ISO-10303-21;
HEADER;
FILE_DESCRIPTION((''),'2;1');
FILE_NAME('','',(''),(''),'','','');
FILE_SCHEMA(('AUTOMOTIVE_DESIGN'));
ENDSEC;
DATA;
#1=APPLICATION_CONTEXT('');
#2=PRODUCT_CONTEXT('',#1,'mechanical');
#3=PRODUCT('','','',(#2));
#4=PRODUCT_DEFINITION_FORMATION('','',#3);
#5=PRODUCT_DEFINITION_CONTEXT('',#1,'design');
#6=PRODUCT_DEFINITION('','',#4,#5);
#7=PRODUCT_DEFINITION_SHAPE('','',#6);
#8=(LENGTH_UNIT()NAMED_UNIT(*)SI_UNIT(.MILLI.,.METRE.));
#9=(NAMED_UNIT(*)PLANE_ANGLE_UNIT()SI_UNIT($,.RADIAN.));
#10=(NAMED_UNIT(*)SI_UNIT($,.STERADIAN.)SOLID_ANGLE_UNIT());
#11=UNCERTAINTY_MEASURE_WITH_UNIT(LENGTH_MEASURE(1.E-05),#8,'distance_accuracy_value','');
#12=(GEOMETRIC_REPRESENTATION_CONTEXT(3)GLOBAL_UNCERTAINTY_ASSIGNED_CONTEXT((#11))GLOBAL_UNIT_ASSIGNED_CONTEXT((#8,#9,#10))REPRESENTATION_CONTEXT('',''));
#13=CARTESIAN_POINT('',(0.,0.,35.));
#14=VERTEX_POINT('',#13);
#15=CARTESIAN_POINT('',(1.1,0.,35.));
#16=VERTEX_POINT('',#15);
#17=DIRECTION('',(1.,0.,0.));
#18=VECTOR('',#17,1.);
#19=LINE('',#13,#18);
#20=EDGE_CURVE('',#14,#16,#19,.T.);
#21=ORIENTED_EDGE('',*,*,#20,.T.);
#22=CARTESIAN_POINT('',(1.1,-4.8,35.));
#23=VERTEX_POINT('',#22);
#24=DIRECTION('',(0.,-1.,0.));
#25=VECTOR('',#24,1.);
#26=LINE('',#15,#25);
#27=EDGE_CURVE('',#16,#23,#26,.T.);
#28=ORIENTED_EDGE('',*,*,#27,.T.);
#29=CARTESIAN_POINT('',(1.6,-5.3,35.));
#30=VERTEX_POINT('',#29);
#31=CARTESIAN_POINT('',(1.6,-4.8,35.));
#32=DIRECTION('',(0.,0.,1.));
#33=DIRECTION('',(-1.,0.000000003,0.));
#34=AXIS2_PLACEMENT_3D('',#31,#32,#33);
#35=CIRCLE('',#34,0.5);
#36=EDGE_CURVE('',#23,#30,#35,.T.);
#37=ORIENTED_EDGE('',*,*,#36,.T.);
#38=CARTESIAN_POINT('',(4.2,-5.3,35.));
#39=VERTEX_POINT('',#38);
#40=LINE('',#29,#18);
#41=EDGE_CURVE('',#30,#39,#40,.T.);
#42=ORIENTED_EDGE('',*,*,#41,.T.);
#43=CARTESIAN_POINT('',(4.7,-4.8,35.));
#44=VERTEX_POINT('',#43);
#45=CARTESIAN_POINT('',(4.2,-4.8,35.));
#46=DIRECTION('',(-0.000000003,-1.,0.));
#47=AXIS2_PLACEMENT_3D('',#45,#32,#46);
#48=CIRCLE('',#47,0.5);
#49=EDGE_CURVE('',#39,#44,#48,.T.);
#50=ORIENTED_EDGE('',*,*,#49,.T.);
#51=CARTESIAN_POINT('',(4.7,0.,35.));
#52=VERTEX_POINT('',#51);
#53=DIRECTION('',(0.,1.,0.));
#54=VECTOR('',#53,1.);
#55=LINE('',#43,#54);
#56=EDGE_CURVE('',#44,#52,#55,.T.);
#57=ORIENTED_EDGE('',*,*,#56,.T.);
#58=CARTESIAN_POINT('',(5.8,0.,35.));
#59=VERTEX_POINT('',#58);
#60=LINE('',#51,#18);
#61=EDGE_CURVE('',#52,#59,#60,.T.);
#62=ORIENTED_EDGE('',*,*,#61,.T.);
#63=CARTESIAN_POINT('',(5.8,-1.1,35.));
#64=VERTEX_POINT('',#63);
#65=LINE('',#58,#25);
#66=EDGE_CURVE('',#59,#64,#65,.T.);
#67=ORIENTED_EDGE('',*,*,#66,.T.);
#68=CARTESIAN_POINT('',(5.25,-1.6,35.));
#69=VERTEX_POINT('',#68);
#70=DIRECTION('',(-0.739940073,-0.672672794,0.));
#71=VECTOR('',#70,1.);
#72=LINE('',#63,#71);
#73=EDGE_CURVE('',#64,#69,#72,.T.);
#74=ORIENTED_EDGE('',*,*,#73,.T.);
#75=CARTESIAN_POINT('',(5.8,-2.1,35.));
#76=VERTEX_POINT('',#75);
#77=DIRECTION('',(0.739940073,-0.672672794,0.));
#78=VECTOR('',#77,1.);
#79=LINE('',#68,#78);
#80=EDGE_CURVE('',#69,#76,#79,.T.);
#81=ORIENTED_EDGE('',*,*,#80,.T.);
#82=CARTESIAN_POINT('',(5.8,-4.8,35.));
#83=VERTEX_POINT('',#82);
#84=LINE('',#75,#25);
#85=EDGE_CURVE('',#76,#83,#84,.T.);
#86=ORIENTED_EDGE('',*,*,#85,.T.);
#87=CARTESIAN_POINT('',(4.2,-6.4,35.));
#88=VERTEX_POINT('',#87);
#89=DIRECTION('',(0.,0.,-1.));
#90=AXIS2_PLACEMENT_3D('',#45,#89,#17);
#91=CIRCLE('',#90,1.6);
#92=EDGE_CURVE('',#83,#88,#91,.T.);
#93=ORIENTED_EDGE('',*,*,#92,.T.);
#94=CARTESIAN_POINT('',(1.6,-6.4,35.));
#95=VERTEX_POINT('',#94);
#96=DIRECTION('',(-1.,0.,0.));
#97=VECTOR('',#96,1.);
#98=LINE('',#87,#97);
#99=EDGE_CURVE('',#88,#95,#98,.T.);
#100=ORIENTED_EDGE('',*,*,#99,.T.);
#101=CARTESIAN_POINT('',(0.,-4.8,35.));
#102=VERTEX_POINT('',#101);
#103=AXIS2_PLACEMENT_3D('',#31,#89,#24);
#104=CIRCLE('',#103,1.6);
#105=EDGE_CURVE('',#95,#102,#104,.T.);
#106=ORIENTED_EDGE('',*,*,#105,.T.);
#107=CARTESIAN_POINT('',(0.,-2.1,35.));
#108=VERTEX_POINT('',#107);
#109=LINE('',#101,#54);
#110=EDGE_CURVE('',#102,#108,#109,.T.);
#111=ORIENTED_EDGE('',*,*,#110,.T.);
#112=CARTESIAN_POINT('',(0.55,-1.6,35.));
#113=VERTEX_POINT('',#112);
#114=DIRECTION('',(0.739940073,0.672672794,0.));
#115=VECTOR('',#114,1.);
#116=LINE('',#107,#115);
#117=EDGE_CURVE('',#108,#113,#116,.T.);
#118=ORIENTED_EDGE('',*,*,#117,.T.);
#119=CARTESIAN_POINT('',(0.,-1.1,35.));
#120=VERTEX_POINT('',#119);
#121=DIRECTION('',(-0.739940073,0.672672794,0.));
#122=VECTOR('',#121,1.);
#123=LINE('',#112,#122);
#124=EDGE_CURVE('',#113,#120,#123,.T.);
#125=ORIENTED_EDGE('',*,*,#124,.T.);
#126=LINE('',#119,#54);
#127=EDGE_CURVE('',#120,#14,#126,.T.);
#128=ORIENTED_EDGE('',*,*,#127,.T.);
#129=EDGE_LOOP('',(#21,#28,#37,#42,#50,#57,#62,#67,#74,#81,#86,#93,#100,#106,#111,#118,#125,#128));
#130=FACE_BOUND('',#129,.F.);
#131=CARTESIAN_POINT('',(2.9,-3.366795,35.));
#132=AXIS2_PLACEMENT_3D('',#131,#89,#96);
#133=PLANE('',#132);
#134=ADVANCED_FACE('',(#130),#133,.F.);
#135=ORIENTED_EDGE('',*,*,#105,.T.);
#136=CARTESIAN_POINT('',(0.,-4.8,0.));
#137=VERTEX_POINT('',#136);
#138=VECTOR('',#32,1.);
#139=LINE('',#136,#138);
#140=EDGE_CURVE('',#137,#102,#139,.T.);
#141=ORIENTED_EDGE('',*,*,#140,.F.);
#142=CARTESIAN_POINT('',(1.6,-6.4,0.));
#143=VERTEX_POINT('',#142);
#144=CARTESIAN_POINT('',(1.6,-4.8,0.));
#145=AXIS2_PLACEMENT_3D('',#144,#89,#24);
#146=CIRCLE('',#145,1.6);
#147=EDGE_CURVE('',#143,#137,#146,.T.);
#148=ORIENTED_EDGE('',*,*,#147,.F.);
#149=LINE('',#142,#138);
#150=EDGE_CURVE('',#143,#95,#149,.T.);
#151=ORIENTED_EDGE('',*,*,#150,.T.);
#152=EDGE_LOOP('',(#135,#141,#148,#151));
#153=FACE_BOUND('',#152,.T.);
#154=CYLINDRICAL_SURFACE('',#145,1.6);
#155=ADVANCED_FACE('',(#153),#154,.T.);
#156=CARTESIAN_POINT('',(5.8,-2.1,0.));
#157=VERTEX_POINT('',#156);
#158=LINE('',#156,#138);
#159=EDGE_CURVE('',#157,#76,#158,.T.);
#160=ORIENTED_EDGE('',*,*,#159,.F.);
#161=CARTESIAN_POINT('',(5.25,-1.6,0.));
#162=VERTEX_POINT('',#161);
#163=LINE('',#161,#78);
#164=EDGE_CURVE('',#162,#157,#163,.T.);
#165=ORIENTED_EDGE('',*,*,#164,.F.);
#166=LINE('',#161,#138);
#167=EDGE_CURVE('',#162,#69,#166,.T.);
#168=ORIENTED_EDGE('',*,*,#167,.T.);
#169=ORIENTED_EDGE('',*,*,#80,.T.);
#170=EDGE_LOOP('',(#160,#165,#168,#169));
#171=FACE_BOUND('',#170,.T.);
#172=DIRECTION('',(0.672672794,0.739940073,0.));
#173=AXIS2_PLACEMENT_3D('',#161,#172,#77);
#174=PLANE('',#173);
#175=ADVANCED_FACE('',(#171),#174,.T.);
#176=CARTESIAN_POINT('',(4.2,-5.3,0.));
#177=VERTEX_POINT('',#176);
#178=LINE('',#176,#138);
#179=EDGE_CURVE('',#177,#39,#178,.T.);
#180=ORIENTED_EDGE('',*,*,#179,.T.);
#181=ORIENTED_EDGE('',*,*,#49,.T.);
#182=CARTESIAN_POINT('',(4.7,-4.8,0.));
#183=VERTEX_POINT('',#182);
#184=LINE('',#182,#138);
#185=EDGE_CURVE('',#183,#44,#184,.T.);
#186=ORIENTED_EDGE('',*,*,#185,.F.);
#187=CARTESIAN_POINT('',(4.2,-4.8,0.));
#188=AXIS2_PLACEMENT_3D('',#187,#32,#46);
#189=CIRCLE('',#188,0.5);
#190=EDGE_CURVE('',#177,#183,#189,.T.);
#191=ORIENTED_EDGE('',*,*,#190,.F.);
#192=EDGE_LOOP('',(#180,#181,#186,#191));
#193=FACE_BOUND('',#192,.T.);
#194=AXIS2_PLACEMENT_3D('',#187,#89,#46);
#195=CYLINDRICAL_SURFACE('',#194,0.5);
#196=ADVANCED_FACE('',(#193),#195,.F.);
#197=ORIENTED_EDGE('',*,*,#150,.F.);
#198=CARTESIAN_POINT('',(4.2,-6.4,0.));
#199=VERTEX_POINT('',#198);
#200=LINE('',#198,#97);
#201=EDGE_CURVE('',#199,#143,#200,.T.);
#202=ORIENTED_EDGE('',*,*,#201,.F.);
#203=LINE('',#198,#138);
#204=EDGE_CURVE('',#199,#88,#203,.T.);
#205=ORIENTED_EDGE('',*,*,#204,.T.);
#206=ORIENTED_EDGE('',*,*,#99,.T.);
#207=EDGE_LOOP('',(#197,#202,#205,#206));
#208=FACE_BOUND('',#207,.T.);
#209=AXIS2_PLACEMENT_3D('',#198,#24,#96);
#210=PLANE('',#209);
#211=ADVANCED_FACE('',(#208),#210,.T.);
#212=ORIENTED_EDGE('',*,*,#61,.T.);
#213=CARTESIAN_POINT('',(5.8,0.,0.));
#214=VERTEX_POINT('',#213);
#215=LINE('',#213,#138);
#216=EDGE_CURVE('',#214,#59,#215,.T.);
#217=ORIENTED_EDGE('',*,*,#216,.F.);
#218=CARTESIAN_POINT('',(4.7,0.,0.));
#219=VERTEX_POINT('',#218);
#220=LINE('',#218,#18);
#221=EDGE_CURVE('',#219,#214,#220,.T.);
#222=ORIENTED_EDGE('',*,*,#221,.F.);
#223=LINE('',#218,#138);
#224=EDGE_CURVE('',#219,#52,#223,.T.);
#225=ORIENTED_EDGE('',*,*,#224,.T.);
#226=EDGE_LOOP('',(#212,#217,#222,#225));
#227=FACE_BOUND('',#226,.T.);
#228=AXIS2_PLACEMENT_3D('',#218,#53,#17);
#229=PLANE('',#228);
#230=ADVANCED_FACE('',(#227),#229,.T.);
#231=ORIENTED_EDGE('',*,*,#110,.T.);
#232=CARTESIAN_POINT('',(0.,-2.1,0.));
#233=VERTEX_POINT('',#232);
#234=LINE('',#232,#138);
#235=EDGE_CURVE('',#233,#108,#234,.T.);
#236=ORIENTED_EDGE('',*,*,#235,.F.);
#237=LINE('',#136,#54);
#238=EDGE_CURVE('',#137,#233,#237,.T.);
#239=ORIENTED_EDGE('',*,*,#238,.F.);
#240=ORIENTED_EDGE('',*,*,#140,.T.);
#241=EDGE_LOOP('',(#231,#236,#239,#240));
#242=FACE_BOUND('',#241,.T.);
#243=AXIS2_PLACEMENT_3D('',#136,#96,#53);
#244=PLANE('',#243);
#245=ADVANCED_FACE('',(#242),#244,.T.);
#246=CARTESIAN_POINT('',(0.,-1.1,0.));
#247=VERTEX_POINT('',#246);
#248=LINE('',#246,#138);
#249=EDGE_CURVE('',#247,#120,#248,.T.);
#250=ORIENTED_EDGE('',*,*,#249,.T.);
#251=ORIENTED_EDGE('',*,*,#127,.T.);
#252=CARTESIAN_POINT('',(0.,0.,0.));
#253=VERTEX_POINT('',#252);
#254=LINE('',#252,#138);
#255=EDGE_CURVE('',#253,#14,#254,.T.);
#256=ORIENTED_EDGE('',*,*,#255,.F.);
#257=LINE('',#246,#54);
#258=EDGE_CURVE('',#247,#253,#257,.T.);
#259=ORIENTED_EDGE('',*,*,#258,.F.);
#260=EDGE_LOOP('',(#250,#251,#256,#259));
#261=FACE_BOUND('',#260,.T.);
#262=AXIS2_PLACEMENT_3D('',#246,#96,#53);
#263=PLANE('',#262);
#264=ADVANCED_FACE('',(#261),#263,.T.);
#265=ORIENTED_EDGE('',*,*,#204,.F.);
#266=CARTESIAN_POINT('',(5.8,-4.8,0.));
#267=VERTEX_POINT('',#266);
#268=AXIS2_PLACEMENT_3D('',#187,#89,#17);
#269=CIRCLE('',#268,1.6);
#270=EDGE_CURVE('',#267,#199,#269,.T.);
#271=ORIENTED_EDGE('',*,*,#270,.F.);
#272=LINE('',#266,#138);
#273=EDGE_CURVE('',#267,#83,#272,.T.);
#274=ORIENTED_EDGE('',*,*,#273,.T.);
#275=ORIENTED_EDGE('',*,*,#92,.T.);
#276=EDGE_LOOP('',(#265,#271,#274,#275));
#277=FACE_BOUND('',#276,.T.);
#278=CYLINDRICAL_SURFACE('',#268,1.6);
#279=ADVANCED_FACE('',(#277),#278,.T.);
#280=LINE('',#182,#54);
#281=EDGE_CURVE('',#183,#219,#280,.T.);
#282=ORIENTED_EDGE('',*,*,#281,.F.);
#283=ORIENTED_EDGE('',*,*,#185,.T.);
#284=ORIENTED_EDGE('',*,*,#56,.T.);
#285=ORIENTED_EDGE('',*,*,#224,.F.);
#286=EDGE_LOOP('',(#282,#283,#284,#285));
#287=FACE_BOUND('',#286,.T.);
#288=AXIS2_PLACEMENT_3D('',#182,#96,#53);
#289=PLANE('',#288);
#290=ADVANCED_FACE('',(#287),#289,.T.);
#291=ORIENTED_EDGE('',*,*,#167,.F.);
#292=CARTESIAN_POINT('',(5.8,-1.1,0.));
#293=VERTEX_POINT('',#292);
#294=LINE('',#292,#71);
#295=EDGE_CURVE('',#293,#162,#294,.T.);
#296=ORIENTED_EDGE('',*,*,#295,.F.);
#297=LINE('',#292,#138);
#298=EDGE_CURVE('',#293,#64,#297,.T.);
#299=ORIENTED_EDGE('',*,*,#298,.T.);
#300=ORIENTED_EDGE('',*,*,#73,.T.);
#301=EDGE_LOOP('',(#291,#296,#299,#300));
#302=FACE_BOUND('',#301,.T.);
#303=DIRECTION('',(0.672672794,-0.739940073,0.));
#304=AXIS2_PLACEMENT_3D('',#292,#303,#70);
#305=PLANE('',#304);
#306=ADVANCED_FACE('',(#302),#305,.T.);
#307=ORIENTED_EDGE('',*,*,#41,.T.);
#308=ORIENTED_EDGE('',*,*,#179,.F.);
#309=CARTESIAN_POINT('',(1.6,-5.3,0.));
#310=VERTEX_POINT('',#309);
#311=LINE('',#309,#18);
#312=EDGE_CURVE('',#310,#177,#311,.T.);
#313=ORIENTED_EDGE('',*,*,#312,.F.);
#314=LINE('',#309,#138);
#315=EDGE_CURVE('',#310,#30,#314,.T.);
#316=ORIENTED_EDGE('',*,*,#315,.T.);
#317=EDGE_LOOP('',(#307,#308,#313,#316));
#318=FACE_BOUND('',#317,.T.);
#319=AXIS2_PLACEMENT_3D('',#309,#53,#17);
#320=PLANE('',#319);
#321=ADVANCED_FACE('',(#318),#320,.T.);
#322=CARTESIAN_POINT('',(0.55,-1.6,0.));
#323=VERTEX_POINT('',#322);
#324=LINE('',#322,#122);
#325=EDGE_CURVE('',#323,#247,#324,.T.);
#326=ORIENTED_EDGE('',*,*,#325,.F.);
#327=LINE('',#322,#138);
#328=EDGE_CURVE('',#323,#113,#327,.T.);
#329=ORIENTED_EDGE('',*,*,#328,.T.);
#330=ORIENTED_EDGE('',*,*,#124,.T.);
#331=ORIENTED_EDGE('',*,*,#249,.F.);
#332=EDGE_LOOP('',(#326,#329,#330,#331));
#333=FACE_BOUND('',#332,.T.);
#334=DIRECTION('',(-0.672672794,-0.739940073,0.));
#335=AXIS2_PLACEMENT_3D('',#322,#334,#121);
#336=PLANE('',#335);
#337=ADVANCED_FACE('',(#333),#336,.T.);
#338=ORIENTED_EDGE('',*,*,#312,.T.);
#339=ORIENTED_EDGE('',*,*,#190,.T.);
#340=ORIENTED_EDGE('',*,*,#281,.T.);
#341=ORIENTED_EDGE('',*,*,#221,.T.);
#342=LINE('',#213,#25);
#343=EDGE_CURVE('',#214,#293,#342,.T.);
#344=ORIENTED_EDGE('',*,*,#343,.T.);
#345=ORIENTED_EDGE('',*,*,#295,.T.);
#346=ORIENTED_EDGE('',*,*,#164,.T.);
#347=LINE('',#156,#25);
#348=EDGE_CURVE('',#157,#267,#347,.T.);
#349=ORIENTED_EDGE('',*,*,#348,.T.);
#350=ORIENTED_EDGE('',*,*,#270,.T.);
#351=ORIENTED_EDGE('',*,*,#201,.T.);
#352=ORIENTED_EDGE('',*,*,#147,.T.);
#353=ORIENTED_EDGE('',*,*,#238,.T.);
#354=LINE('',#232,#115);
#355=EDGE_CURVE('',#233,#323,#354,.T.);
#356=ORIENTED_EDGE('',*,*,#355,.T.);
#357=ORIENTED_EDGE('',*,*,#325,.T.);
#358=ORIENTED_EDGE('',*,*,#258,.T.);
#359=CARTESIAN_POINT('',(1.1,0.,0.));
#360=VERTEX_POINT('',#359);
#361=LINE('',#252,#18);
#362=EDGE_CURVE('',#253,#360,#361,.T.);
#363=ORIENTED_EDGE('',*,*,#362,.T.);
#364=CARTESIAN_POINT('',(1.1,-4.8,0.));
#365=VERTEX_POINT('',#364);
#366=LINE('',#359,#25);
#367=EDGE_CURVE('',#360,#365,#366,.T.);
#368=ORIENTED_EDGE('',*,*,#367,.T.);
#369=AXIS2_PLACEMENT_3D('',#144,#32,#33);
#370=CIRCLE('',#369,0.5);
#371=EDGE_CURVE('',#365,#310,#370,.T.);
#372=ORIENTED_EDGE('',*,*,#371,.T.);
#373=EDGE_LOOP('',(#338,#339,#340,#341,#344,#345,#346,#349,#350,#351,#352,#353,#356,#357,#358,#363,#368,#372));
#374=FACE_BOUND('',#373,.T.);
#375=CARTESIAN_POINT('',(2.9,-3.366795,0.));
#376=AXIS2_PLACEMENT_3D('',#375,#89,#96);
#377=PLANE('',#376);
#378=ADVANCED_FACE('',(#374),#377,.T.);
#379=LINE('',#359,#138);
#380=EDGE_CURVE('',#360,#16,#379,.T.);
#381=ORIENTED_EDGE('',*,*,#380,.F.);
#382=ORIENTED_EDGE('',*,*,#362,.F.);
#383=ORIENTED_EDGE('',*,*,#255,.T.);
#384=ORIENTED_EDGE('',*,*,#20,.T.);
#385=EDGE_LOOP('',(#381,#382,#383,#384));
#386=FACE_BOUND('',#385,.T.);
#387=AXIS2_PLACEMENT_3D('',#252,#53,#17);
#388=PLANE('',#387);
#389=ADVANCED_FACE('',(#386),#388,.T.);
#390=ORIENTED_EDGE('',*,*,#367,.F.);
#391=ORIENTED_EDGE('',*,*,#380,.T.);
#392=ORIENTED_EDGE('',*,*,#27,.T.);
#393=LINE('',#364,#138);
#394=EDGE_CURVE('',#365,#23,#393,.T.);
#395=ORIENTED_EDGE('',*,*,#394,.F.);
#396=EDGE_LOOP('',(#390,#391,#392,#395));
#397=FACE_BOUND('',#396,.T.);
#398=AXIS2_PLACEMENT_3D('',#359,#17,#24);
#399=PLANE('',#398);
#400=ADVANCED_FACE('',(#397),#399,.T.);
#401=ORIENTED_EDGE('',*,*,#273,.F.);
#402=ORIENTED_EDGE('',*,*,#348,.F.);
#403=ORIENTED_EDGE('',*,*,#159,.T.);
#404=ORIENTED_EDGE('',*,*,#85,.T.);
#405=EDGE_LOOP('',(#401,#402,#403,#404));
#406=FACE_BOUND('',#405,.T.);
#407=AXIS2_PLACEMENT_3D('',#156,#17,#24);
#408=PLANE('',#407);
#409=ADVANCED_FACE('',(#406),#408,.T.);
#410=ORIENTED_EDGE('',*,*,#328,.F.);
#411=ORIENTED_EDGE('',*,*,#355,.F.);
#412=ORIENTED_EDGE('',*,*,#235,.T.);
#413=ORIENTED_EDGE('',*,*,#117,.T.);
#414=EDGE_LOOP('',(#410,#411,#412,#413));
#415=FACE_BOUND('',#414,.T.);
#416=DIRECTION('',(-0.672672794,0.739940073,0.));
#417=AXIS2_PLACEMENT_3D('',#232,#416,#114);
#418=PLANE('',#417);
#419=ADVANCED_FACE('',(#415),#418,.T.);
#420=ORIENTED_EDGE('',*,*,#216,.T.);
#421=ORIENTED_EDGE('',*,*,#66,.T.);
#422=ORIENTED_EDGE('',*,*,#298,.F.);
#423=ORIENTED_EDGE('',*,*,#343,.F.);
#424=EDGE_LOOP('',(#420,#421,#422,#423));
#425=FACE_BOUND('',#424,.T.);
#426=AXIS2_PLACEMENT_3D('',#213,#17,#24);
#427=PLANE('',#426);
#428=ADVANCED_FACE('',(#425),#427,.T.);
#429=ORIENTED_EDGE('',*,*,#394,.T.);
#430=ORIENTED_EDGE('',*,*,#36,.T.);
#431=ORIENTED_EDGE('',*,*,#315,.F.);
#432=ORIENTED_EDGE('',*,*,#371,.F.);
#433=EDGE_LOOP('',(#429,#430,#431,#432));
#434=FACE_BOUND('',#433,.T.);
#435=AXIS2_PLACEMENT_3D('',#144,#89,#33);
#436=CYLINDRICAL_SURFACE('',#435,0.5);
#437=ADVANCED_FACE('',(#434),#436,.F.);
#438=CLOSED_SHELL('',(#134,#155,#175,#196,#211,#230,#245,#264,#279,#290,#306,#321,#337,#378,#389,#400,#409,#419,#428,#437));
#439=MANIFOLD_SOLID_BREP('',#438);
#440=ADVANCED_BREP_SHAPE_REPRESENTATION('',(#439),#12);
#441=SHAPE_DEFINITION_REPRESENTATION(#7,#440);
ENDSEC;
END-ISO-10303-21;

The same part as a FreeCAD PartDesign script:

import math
import FreeCAD as App
import Part
import Sketcher
from FreeCAD import Vector
Q = App.Units.Quantity

doc = App.newDocument("Part")
params = doc.addObject("Spreadsheet::Sheet", "Params")
for row, (alias, value) in enumerate([
    ("sketch1_radius", "0.5 mm"),
    ("sketch1_radius2", "1.6 mm"),
    ("sketch1_width", "2.6 mm"),
    ("sketch1_height", "4.8 mm"),
    ("sketch1_height2", "2.7 mm"),
    ("pad1_length", "35 mm"),
], start=1):
    params.set(f"A{row}", alias)
    params.set(f"B{row}", "=" + value)
    params.setAlias(f"B{row}", alias)

body = doc.addObject("PartDesign::Body", "Body")

# Sketch on XY plane
sketch1 = doc.addObject("Sketcher::SketchObject", "Sketch")
body.addObject(sketch1)
sketch1.AttachmentSupport = (doc.XY_Plane, [""])
sketch1.MapMode = "FlatFace"
sketch1.addGeometry([
    Part.LineSegment(Vector(4.7, 0, 0), Vector(4.7, -4.8, 0)),  # 0
    Part.ArcOfCircle(Part.Circle(Vector(4.2, -4.8, 0), Vector(0, 0, 1), 0.5), math.radians(-90), math.radians(0)),  # 1
    Part.LineSegment(Vector(4.2, -5.3, 0), Vector(1.6, -5.3, 0)),  # 2
    Part.ArcOfCircle(Part.Circle(Vector(1.6, -4.8, 0), Vector(0, 0, 1), 0.5), math.radians(180), math.radians(270)),  # 3
    Part.LineSegment(Vector(1.1, -4.8, 0), Vector(1.1, 0, 0)),  # 4
    Part.LineSegment(Vector(1.1, 0, 0), Vector(0, 0, 0)),  # 5
    Part.LineSegment(Vector(0, 0, 0), Vector(0, -1.1, 0)),  # 6
    Part.LineSegment(Vector(0, -1.1, 0), Vector(0.55, -1.6, 0)),  # 7
    Part.LineSegment(Vector(0.55, -1.6, 0), Vector(0, -2.1, 0)),  # 8
    Part.LineSegment(Vector(0, -2.1, 0), Vector(0, -4.8, 0)),  # 9
    Part.ArcOfCircle(Part.Circle(Vector(1.6, -4.8, 0), Vector(0, 0, 1), 1.6), math.radians(180), math.radians(270)),  # 10
    Part.LineSegment(Vector(1.6, -6.4, 0), Vector(4.2, -6.4, 0)),  # 11
    Part.ArcOfCircle(Part.Circle(Vector(4.2, -4.8, 0), Vector(0, 0, 1), 1.6), math.radians(-90), math.radians(0)),  # 12
    Part.LineSegment(Vector(5.8, -4.8, 0), Vector(5.8, -2.1, 0)),  # 13
    Part.LineSegment(Vector(5.8, -2.1, 0), Vector(5.25, -1.6, 0)),  # 14
    Part.LineSegment(Vector(5.25, -1.6, 0), Vector(5.8, -1.1, 0)),  # 15
    Part.LineSegment(Vector(5.8, -1.1, 0), Vector(5.8, 0, 0)),  # 16
    Part.LineSegment(Vector(5.8, 0, 0), Vector(4.7, 0, 0)),  # 17
], False)
sketch1.addConstraint([
    Sketcher.Constraint("Tangent", 0, 2, 1, 2),
    Sketcher.Constraint("Tangent", 1, 1, 2, 1),
    Sketcher.Constraint("Tangent", 2, 2, 3, 2),
    Sketcher.Constraint("Tangent", 3, 1, 4, 1),
    Sketcher.Constraint("Coincident", 4, 2, 5, 1),
    Sketcher.Constraint("Coincident", 5, 2, 6, 1),
    Sketcher.Constraint("Coincident", 6, 2, 7, 1),
    Sketcher.Constraint("Coincident", 7, 2, 8, 1),
    Sketcher.Constraint("Coincident", 8, 2, 9, 1),
    Sketcher.Constraint("Tangent", 9, 2, 10, 1),
    Sketcher.Constraint("Tangent", 10, 2, 11, 1),
    Sketcher.Constraint("Tangent", 11, 2, 12, 1),
    Sketcher.Constraint("Tangent", 12, 2, 13, 1),
    Sketcher.Constraint("Coincident", 13, 2, 14, 1),
    Sketcher.Constraint("Coincident", 14, 2, 15, 1),
    Sketcher.Constraint("Coincident", 15, 2, 16, 1),
    Sketcher.Constraint("Coincident", 16, 2, 17, 1),
    Sketcher.Constraint("Coincident", 17, 2, 0, 1),
    Sketcher.Constraint("Vertical", 0),
    Sketcher.Constraint("Horizontal", 2),
    Sketcher.Constraint("Vertical", 4),
    Sketcher.Constraint("Horizontal", 5),
    Sketcher.Constraint("Vertical", 6),
    Sketcher.Constraint("Vertical", 9),
    Sketcher.Constraint("Horizontal", 11),
    Sketcher.Constraint("Vertical", 13),
    Sketcher.Constraint("Vertical", 16),
    Sketcher.Constraint("Horizontal", 17),
    Sketcher.Constraint("Coincident", 5, 2, -1, 1),
    Sketcher.Constraint("Coincident", 10, 3, 3, 3),
    Sketcher.Constraint("Coincident", 12, 3, 1, 3),
    Sketcher.Constraint("Equal", 1, 3),
    Sketcher.Constraint("PointOnObject", 8, 2, -2),
    Sketcher.Constraint("PointOnObject", 16, 2, -1),
    Sketcher.Constraint("Parallel", 7, 14),
    Sketcher.Constraint("Parallel", 8, 15),
    Sketcher.Constraint("Horizontal", 8, 2, 13, 2),
    Sketcher.Constraint("Horizontal", 7, 2, 14, 2),
    Sketcher.Constraint("Horizontal", 6, 2, 15, 2),
    Sketcher.Constraint("Vertical", 13, 2, 15, 2),
    Sketcher.Constraint("Equal", 17, 6),
    Sketcher.Constraint("Radius", 1, Q("0.5 mm")),
    Sketcher.Constraint("Radius", 10, Q("1.6 mm")),
    Sketcher.Constraint("DistanceX", 2, 2, 2, 1, Q("2.6 mm")),
    Sketcher.Constraint("DistanceY", 0, 2, 0, 1, Q("4.8 mm")),
    Sketcher.Constraint("DistanceY", 9, 2, 9, 1, Q("2.7 mm")),
    Sketcher.Constraint("DistanceX", -1, 1, 7, 2, Q("0.55 mm")),
])
sketch1.setExpression("Constraints[41]", "Params.sketch1_radius")
sketch1.setExpression("Constraints[42]", "Params.sketch1_radius2")
sketch1.setExpression("Constraints[43]", "Params.sketch1_width")
sketch1.setExpression("Constraints[44]", "Params.sketch1_height")
sketch1.setExpression("Constraints[45]", "Params.sketch1_height2")
pad1 = doc.addObject("PartDesign::Pad", "Pad")
body.addObject(pad1)
pad1.Profile = sketch1
pad1.setExpression("Length", "Params.pad1_length")

doc.recompute()
